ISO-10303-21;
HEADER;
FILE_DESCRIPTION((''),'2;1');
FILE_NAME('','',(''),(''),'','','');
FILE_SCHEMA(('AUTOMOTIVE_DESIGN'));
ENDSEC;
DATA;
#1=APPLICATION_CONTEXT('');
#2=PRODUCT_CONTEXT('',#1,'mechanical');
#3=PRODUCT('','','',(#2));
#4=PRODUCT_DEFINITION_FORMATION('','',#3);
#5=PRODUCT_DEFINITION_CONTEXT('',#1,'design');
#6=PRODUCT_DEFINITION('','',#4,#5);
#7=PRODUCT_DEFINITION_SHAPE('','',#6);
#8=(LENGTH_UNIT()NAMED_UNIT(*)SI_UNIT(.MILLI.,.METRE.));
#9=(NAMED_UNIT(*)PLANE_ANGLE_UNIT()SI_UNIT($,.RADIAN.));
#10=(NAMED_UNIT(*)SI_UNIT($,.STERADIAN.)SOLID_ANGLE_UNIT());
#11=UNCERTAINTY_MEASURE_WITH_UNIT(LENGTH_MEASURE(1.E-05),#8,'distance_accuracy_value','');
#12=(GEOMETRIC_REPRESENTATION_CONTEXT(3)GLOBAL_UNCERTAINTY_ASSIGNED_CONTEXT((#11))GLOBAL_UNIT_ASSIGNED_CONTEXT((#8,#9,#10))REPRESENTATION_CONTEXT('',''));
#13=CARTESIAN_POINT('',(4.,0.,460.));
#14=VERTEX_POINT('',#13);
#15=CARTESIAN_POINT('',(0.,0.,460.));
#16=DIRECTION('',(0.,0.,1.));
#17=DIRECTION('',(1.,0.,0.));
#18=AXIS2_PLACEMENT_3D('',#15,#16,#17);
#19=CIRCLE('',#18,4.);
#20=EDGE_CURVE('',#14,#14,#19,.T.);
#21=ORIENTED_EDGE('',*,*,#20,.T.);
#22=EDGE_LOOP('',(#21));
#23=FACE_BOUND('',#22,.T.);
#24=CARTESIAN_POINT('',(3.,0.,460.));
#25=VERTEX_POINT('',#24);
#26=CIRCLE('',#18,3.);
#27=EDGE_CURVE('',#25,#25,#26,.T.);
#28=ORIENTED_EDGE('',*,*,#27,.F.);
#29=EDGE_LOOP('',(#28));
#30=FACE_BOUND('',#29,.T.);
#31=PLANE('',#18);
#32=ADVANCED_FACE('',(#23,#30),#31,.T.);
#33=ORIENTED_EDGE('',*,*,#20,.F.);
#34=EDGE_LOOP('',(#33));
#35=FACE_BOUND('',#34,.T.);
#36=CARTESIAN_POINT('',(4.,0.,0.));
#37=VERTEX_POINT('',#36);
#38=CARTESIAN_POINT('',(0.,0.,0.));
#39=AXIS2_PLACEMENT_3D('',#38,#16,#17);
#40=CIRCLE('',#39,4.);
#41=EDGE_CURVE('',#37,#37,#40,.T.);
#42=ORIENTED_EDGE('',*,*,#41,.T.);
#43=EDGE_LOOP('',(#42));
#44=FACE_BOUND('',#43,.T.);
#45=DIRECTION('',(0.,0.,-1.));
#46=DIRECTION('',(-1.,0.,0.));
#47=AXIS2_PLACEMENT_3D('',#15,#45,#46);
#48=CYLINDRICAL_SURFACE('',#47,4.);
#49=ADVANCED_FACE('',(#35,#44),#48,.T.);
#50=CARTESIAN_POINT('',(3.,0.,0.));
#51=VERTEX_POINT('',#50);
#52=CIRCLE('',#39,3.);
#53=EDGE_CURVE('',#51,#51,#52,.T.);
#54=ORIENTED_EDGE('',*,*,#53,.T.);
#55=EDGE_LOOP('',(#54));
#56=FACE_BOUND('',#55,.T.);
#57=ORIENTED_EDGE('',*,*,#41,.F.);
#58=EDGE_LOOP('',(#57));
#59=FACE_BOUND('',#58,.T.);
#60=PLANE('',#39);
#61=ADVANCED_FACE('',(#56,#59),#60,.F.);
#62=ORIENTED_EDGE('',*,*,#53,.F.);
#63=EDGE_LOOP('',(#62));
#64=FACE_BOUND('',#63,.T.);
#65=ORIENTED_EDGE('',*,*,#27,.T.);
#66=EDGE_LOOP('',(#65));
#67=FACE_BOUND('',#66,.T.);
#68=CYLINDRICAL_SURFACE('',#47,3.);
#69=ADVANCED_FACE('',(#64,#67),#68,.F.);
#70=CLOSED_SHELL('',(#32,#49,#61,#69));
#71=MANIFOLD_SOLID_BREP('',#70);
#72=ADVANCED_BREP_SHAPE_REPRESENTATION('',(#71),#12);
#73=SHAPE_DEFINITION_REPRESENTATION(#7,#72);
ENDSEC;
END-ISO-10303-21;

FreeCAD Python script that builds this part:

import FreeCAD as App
import Part
import Sketcher

V = App.Vector

doc = App.newDocument("Part")
body = doc.addObject("PartDesign::Body", "Body")

sketch1 = doc.addObject("Sketcher::SketchObject", "Sketch")
body.addObject(sketch1)
sketch1.AttachmentSupport = (doc.XY_Plane, [""])
sketch1.MapMode = "FlatFace"
sketch1.addGeometry(Part.Circle(V(0, 0, 0), V(0, 0, 1), 4), False)
sketch1.addGeometry(Part.Circle(V(0, 0, 0), V(0, 0, 1), 3), False)
sketch1.addConstraint(Sketcher.Constraint("Coincident", 0, 3, -1, 1))
sketch1.addConstraint(Sketcher.Constraint("Coincident", 1, 3, -1, 1))
sketch1.addConstraint(Sketcher.Constraint("Diameter", 0, 8.0))
sketch1.addConstraint(Sketcher.Constraint("Diameter", 1, 6.0))
pad1 = doc.addObject("PartDesign::Pad", "Pad")
body.addObject(pad1)
pad1.Profile = sketch1
pad1.Length = 460

doc.recompute()
